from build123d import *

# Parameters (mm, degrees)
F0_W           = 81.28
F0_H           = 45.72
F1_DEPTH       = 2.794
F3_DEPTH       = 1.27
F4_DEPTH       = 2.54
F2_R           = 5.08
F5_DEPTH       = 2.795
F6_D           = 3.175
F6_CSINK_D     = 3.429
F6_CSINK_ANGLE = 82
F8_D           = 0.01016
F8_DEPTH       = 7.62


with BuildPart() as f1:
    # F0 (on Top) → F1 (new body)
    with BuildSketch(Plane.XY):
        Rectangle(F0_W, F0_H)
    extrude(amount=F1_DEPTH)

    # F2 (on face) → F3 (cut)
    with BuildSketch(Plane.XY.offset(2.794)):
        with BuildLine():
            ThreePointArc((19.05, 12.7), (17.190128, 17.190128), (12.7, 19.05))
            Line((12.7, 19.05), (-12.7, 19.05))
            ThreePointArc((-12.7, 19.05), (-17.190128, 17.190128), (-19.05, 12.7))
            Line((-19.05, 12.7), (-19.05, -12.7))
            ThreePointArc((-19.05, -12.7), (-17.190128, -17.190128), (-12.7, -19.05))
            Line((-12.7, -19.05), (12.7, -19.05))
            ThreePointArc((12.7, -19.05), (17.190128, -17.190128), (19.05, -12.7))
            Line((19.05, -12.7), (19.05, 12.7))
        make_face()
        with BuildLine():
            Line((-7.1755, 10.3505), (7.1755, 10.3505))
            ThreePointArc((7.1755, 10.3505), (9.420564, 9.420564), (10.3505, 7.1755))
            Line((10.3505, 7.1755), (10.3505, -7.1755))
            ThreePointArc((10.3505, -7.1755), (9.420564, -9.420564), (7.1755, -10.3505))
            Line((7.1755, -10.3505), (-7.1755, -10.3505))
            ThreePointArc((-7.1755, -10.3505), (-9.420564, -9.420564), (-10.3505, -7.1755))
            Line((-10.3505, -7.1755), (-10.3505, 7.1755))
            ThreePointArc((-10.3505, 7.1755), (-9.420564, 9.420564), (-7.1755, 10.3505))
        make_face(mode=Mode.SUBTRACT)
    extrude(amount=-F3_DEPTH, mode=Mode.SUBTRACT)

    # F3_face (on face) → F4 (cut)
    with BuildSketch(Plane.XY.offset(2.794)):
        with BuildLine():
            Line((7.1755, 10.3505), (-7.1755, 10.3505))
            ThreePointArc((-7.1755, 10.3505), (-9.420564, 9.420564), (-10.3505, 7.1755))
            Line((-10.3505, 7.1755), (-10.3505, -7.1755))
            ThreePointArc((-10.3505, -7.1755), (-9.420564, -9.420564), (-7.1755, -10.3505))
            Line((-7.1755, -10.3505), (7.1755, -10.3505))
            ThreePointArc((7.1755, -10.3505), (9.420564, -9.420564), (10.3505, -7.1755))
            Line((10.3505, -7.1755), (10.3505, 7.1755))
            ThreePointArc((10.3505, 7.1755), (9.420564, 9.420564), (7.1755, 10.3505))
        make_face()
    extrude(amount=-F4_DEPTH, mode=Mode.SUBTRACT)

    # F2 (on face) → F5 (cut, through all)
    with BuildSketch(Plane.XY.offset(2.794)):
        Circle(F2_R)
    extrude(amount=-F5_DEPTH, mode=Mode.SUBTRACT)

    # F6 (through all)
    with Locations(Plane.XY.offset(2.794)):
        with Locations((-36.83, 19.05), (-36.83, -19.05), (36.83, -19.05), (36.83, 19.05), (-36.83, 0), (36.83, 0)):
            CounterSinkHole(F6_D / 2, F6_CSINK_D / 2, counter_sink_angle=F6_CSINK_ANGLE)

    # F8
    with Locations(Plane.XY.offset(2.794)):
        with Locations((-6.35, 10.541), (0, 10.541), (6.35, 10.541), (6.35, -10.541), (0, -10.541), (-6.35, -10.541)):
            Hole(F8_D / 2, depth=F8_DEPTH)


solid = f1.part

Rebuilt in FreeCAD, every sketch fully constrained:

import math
import FreeCAD as App
import Part
import Sketcher
from FreeCAD import Vector
Q = App.Units.Quantity


def add_polygon(sketch, points):
    """Adds a closed chain of lines whose ends are joined by coincident constraints."""
    first, n = sketch.GeometryCount, len(points)
    for a, b in zip(points, points[1:] + points[:1]):
        sketch.addGeometry(Part.LineSegment(App.Vector(*a, 0), App.Vector(*b, 0)), False)
    for i in range(n):
        sketch.addConstraint(Sketcher.Constraint("Coincident", first + i, 2, first + (i + 1) % n, 1))

doc = App.newDocument("Part")
body = doc.addObject("PartDesign::Body", "Body")

# Sketch on XY plane
sketch1 = body.newObject("Sketcher::SketchObject", "Sketch")
sketch1.AttachmentSupport = (doc.getObject("XY_Plane"), [""])
sketch1.MapMode = "FlatFace"
add_polygon(sketch1, [(-41, 23), (-41, -23), (41, -23), (41, 23)])  # lines 0-3
sketch1.addConstraint([
    Sketcher.Constraint("Vertical", 0),
    Sketcher.Constraint("Horizontal", 1),
    Sketcher.Constraint("Vertical", 2),
    Sketcher.Constraint("Horizontal", 3),
    Sketcher.Constraint("Symmetric", 0, 2, 2, 2, -1, 1),
    Sketcher.Constraint("DistanceX", 1, 1, 1, 2, Q("3.2 in")),
    Sketcher.Constraint("DistanceY", 0, 2, 0, 1, Q("1.8 in")),
])
pad1 = body.newObject("PartDesign::Pad", "Pad")
pad1.Profile = sketch1
pad1.Length = Q("0.11 in")

# Sketch on XY plane
sketch2 = body.newObject("Sketcher::SketchObject", "Sketch001")
sketch2.AttachmentSupport = (doc.getObject("XY_Plane"), [""])
sketch2.MapMode = "FlatFace"
sketch2.AttachmentOffset = App.Placement(Vector(0, 0, 0.11 * 25.4), App.Rotation())
sketch2.addGeometry([
    Part.ArcOfCircle(Part.Circle(Vector(12.7, 12.7, 0), Vector(0, 0, 1), 6.4), math.radians(0), math.radians(90)),  # 0
    Part.LineSegment(Vector(12.7, 19.1, 0), Vector(-12.7, 19.1, 0)),  # 1
    Part.ArcOfCircle(Part.Circle(Vector(-12.7, 12.7, 0), Vector(0, 0, 1), 6.4), math.radians(90), math.radians(180)),  # 2
    Part.LineSegment(Vector(-19.1, 12.7, 0), Vector(-19.1, -12.7, 0)),  # 3
    Part.ArcOfCircle(Part.Circle(Vector(-12.7, -12.7, 0), Vector(0, 0, 1), 6.4), math.radians(-180), math.radians(-90)),  # 4
    Part.LineSegment(Vector(-12.7, -19.1, 0), Vector(12.7, -19.1, 0)),  # 5
    Part.ArcOfCircle(Part.Circle(Vector(12.7, -12.7, 0), Vector(0, 0, 1), 6.4), math.radians(-90), math.radians(0)),  # 6
    Part.LineSegment(Vector(19.1, -12.7, 0), Vector(19.1, 12.7, 0)),  # 7
    Part.ArcOfCircle(Part.Circle(Vector(-7.2, 7.2, 0), Vector(0, 0, 1), 3.2), math.radians(90), math.radians(180)),  # 8
    Part.LineSegment(Vector(-7.2, 10.4, 0), Vector(7.2, 10.4, 0)),  # 9
    Part.ArcOfCircle(Part.Circle(Vector(7.2, 7.2, 0), Vector(0, 0, 1), 3.2), math.radians(0), math.radians(90)),  # 10
    Part.LineSegment(Vector(10.4, 7.2, 0), Vector(10.4, -7.2, 0)),  # 11
    Part.ArcOfCircle(Part.Circle(Vector(7.2, -7.2, 0), Vector(0, 0, 1), 3.2), math.radians(-90), math.radians(0)),  # 12
    Part.LineSegment(Vector(7.2, -10.4, 0), Vector(-7.2, -10.4, 0)),  # 13
    Part.ArcOfCircle(Part.Circle(Vector(-7.2, -7.2, 0), Vector(0, 0, 1), 3.2), math.radians(-180), math.radians(-90)),  # 14
    Part.LineSegment(Vector(-10.4, -7.2, 0), Vector(-10.4, 7.2, 0)),  # 15
], False)
sketch2.addConstraint([
    Sketcher.Constraint("Tangent", 0, 2, 1, 1),
    Sketcher.Constraint("Tangent", 1, 2, 2, 1),
    Sketcher.Constraint("Tangent", 2, 2, 3, 1),
    Sketcher.Constraint("Tangent", 3, 2, 4, 1),
    Sketcher.Constraint("Tangent", 4, 2, 5, 1),
    Sketcher.Constraint("Tangent", 5, 2, 6, 1),
    Sketcher.Constraint("Tangent", 6, 2, 7, 1),
    Sketcher.Constraint("Tangent", 7, 2, 0, 1),
    Sketcher.Constraint("Tangent", 8, 1, 9, 1),
    Sketcher.Constraint("Tangent", 9, 2, 10, 2),
    Sketcher.Constraint("Tangent", 10, 1, 11, 1),
    Sketcher.Constraint("Tangent", 11, 2, 12, 2),
    Sketcher.Constraint("Tangent", 12, 1, 13, 1),
    Sketcher.Constraint("Tangent", 13, 2, 14, 2),
    Sketcher.Constraint("Tangent", 14, 1, 15, 1),
    Sketcher.Constraint("Tangent", 15, 2, 8, 2),
    Sketcher.Constraint("Horizontal", 1),
    Sketcher.Constraint("Vertical", 3),
    Sketcher.Constraint("Horizontal", 5),
    Sketcher.Constraint("Vertical", 7),
    Sketcher.Constraint("Horizontal", 9),
    Sketcher.Constraint("Vertical", 11),
    Sketcher.Constraint("Horizontal", 13),
    Sketcher.Constraint("Vertical", 15),
    Sketcher.Constraint("Equal", 0, 2),
    Sketcher.Constraint("Equal", 2, 4),
    Sketcher.Constraint("Equal", 4, 6),
    Sketcher.Constraint("Equal", 8, 10),
    Sketcher.Constraint("Equal", 10, 12),
    Sketcher.Constraint("Equal", 12, 14),
    Sketcher.Constraint("Symmetric", 0, 3, 4, 3, -1, 1),
    Sketcher.Constraint("Symmetric", 8, 3, 12, 3, -1, 1),
    Sketcher.Constraint("Equal", 5, 3),
    Sketcher.Constraint("Equal", 13, 11),
    Sketcher.Constraint("DistanceX", 1, 2, 1, 1, Q("1 in")),
    Sketcher.Constraint("Radius", 0, Q("0.25 in")),
    Sketcher.Constraint("Radius", 8, Q("0.125 in")),
    Sketcher.Constraint("DistanceX", 9, 1, 9, 2, Q("0.565 in")),
])
pocket1 = body.newObject("PartDesign::Pocket", "Pocket")
pocket1.Profile = sketch2
pocket1.Length = Q("0.05 in")

# Sketch on XY plane
sketch3 = body.newObject("Sketcher::SketchObject", "Sketch002")
sketch3.AttachmentSupport = (doc.getObject("XY_Plane"), [""])
sketch3.MapMode = "FlatFace"
sketch3.AttachmentOffset = App.Placement(Vector(0, 0, 0.11 * 25.4), App.Rotation())
sketch3.addGeometry([
    Part.LineSegment(Vector(7.2, 10.4, 0), Vector(-7.2, 10.4, 0)),  # 0
    Part.ArcOfCircle(Part.Circle(Vector(-7.2, 7.2, 0), Vector(0, 0, 1), 3.2), math.radians(90), math.radians(180)),  # 1
    Part.LineSegment(Vector(-10.4, 7.2, 0), Vector(-10.4, -7.2, 0)),  # 2
    Part.ArcOfCircle(Part.Circle(Vector(-7.2, -7.2, 0), Vector(0, 0, 1), 3.2), math.radians(-180), math.radians(-90)),  # 3
    Part.LineSegment(Vector(-7.2, -10.4, 0), Vector(7.2, -10.4, 0)),  # 4
    Part.ArcOfCircle(Part.Circle(Vector(7.2, -7.2, 0), Vector(0, 0, 1), 3.2), math.radians(-90), math.radians(0)),  # 5
    Part.LineSegment(Vector(10.4, -7.2, 0), Vector(10.4, 7.2, 0)),  # 6
    Part.ArcOfCircle(Part.Circle(Vector(7.2, 7.2, 0), Vector(0, 0, 1), 3.2), math.radians(0), math.radians(90)),  # 7
], False)
sketch3.addConstraint([
    Sketcher.Constraint("Tangent", 0, 2, 1, 1),
    Sketcher.Constraint("Tangent", 1, 2, 2, 1),
    Sketcher.Constraint("Tangent", 2, 2, 3, 1),
    Sketcher.Constraint("Tangent", 3, 2, 4, 1),
    Sketcher.Constraint("Tangent", 4, 2, 5, 1),
    Sketcher.Constraint("Tangent", 5, 2, 6, 1),
    Sketcher.Constraint("Tangent", 6, 2, 7, 1),
    Sketcher.Constraint("Tangent", 7, 2, 0, 1),
    Sketcher.Constraint("Horizontal", 0),
    Sketcher.Constraint("Vertical", 2),
    Sketcher.Constraint("Horizontal", 4),
    Sketcher.Constraint("Vertical", 6),
    Sketcher.Constraint("Equal", 1, 3),
    Sketcher.Constraint("Equal", 3, 5),
    Sketcher.Constraint("Equal", 5, 7),
    Sketcher.Constraint("Symmetric", 1, 3, 5, 3, -1, 1),
    Sketcher.Constraint("Equal", 4, 2),
    Sketcher.Constraint("Radius", 1, Q("0.125 in")),
    Sketcher.Constraint("DistanceX", 0, 2, 0, 1, Q("0.565 in")),
])
pocket2 = body.newObject("PartDesign::Pocket", "Pocket001")
pocket2.Profile = sketch3
pocket2.Length = Q("0.1 in")

# Sketch on XY plane
sketch4 = body.newObject("Sketcher::SketchObject", "Sketch003")
sketch4.AttachmentSupport = (doc.getObject("XY_Plane"), [""])
sketch4.MapMode = "FlatFace"
sketch4.AttachmentOffset = App.Placement(Vector(0, 0, 0.11 * 25.4), App.Rotation())
sketch4.addGeometry(Part.Circle(Vector(0, 0, 0), Vector(0, 0, 1), 5), False)
sketch4.addConstraint([
    Sketcher.Constraint("Coincident", 0, 3, -1, 1),
    Sketcher.Constraint("Diameter", 0, Q("0.4 in")),
])
pocket3 = body.newObject("PartDesign::Pocket", "Pocket002")
pocket3.Profile = sketch4
pocket3.Type = "ThroughAll"

# Sketch on XY plane
sketch5 = body.newObject("Sketcher::SketchObject", "Sketch004")
sketch5.AttachmentSupport = (doc.getObject("XY_Plane"), [""])
sketch5.MapMode = "FlatFace"
sketch5.AttachmentOffset = App.Placement(Vector(0, 0, 0.11 * 25.4), App.Rotation())
sketch5.addGeometry([
    Part.Circle(Vector(-36.8, 19.1, 0), Vector(0, 0, 1), 1.6),  # 0
    Part.Circle(Vector(-36.8, -19.1, 0), Vector(0, 0, 1), 1.6),  # 1
    Part.Circle(Vector(36.8, -19.1, 0), Vector(0, 0, 1), 1.6),  # 2
    Part.Circle(Vector(36.8, 19.1, 0), Vector(0, 0, 1), 1.6),  # 3
    Part.Circle(Vector(-36.8, 0, 0), Vector(0, 0, 1), 1.6),  # 4
    Part.Circle(Vector(36.8, 0, 0), Vector(0, 0, 1), 1.6),  # 5
], False)
sketch5.addConstraint([
    Sketcher.Constraint("Equal", 0, 1),
    Sketcher.Constraint("Equal", 1, 2),
    Sketcher.Constraint("Equal", 2, 3),
    Sketcher.Constraint("Equal", 3, 4),
    Sketcher.Constraint("Equal", 4, 5),
    Sketcher.Constraint("Symmetric", 0, 3, 2, 3, -1, 1),
    Sketcher.Constraint("Symmetric", 1, 3, 3, 3, -1, 1),
    Sketcher.Constraint("Symmetric", 4, 3, 5, 3, -1, 1),
    Sketcher.Constraint("Symmetric", 1, 3, 2, 3, -2),
    Sketcher.Constraint("PointOnObject", 4, 3, -1),
    Sketcher.Constraint("Vertical", 1, 3, 4, 3),
    Sketcher.Constraint("Diameter", 0, Q("0.125 in")),
    Sketcher.Constraint("DistanceY", 1, 3, 0, 3, Q("1.5 in")),
    Sketcher.Constraint("DistanceX", 1, 3, 2, 3, Q("2.9 in")),
])
doc.recompute()
hole = body.newObject("PartDesign::Hole", "Hole")
hole.Profile = sketch5
hole.ThreadType = "None"
hole.Diameter = Q("0.125 in")
hole.DepthType = "ThroughAll"
hole.HoleCutType = "Countersink"
hole.HoleCutDiameter = Q("0.135 in")
hole.HoleCutCountersinkAngle = 82

# Sketch on XY plane
sketch6 = body.newObject("Sketcher::SketchObject", "Sketch005")
sketch6.AttachmentSupport = (doc.getObject("XY_Plane"), [""])
sketch6.MapMode = "FlatFace"
sketch6.AttachmentOffset = App.Placement(Vector(0, 0, 0.11 * 25.4), App.Rotation())
sketch6.addGeometry([
    Part.Circle(Vector(-6.35, 10.541, 0), Vector(0, 0, 1), 0.005),  # 0
    Part.Circle(Vector(0, 10.541, 0), Vector(0, 0, 1), 0.005),  # 1
    Part.Circle(Vector(6.35, 10.541, 0), Vector(0, 0, 1), 0.005),  # 2
    Part.Circle(Vector(6.35, -10.541, 0), Vector(0, 0, 1), 0.005),  # 3
    Part.Circle(Vector(0, -10.541, 0), Vector(0, 0, 1), 0.005),  # 4
    Part.Circle(Vector(-6.35, -10.541, 0), Vector(0, 0, 1), 0.005),  # 5
], False)
sketch6.addConstraint([
    Sketcher.Constraint("Equal", 0, 1),
    Sketcher.Constraint("Equal", 1, 2),
    Sketcher.Constraint("Equal", 2, 3),
    Sketcher.Constraint("Equal", 3, 4),
    Sketcher.Constraint("Equal", 4, 5),
    Sketcher.Constraint("Symmetric", 0, 3, 3, 3, -1, 1),
    Sketcher.Constraint("Symmetric", 1, 3, 4, 3, -1, 1),
    Sketcher.Constraint("Symmetric", 2, 3, 5, 3, -1, 1),
    Sketcher.Constraint("Symmetric", 0, 3, 2, 3, -2),
    Sketcher.Constraint("PointOnObject", 1, 3, -2),
    Sketcher.Constraint("Horizontal", 0, 3, 1, 3),
    Sketcher.Constraint("Diameter", 0, Q("0.0004 in")),
    Sketcher.Constraint("DistanceX", 0, 3, 2, 3, Q("0.5 in")),
    Sketcher.Constraint("DistanceY", 3, 3, 2, 3, Q("0.83 in")),
])
doc.recompute()
hole2 = body.newObject("PartDesign::Hole", "Hole001")
hole2.Profile = sketch6
hole2.ThreadType = "None"
hole2.Diameter = Q("0.0004 in")
hole2.DepthType = "Dimension"
hole2.Depth = Q("0.3 in")
hole2.DrillPoint = "Flat"

doc.recompute()
